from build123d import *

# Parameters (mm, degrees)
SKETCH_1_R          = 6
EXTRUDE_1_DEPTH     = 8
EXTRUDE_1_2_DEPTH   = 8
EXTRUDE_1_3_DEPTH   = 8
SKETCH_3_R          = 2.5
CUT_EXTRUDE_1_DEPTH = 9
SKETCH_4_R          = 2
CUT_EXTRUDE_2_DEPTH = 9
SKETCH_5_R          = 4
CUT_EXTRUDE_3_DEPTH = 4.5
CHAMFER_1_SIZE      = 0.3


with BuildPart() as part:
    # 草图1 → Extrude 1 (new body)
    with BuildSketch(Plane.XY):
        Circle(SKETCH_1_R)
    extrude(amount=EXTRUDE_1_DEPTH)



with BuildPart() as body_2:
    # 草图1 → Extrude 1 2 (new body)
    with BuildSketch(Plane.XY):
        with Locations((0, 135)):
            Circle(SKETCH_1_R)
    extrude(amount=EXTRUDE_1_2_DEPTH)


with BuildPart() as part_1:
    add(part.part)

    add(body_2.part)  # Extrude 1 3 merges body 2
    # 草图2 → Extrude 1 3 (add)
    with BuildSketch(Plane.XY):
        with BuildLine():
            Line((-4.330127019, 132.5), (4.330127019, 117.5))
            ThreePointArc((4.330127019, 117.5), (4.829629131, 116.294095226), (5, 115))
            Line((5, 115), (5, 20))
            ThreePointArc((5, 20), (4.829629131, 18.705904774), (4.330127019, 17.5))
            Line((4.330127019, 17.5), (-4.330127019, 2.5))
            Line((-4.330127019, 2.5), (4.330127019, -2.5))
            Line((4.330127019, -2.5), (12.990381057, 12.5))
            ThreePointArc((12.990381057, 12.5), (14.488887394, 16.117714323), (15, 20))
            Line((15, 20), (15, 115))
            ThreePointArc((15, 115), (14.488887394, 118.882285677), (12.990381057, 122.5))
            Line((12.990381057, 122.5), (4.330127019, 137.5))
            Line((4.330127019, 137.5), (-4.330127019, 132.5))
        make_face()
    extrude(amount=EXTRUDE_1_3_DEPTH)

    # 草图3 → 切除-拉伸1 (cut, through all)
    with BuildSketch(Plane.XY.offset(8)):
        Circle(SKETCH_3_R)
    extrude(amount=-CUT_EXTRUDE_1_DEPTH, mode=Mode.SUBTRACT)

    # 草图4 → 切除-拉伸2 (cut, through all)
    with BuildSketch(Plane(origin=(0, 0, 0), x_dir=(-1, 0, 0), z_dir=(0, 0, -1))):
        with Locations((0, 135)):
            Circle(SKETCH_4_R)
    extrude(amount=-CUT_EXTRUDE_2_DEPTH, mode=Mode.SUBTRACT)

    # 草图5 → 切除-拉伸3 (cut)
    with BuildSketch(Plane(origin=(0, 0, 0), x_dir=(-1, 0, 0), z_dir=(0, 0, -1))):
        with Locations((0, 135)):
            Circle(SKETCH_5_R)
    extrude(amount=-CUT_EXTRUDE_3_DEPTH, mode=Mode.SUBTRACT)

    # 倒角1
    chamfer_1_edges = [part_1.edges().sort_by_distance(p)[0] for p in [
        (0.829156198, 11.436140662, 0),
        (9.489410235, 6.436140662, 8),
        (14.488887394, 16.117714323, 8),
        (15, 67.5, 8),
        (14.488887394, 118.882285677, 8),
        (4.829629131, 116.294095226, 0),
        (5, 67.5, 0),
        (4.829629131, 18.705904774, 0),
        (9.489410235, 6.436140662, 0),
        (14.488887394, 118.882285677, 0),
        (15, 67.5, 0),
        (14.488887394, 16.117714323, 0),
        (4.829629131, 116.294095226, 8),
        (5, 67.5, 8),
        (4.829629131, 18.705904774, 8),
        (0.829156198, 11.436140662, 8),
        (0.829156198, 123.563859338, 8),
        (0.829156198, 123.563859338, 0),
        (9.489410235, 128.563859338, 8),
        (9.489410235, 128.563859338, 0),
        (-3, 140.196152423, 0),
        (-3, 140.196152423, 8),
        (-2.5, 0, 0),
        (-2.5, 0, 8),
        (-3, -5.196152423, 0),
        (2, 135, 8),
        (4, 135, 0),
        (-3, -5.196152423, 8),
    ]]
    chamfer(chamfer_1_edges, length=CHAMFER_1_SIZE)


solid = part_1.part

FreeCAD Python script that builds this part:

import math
import FreeCAD as App
import Part
import Sketcher
Q = App.Units.Quantity


def edges_at(feature, points):
    """Names of the edges that pass closest to the given points."""
    edges = feature.Shape.Edges
    near = lambda p: min(range(len(edges)), key=lambda i: edges[i].distToShape(Part.Vertex(*p))[0])
    return sorted({f"Edge{near(p) + 1}" for p in points})

doc = App.newDocument("Part")
body = doc.addObject("PartDesign::Body", "Body")

sketch1 = doc.addObject("Sketcher::SketchObject", "Sketch")
body.addObject(sketch1)
sketch1.AttachmentSupport = (doc.XY_Plane, [""])
sketch1.MapMode = "FlatFace"
sketch1.addGeometry(Part.Circle(App.Vector(0, 0, 0), App.Vector(0, 0, 1), 6), False)
sketch1.addConstraint([
    Sketcher.Constraint("Coincident", 0, 3, -1, 1),
    Sketcher.Constraint("Diameter", 0, 12.0),
])
pad1 = doc.addObject("PartDesign::Pad", "Pad")
body.addObject(pad1)
pad1.Profile = sketch1
pad1.Length = 8
body2 = doc.addObject("PartDesign::Body", "Body001")

sketch2 = doc.addObject("Sketcher::SketchObject", "Sketch001")
body2.addObject(sketch2)
sketch2.AttachmentSupport = (doc.getObject("XY_Plane001"), [""])
sketch2.MapMode = "FlatFace"
sketch2.addGeometry(Part.Circle(App.Vector(0, 135, 0), App.Vector(0, 0, 1), 6), False)
sketch2.addConstraint([
    Sketcher.Constraint("PointOnObject", 0, 3, -2),
    Sketcher.Constraint("Diameter", 0, 12.0),
    Sketcher.Constraint("DistanceY", -1, 1, 0, 3, 135.0),
])
pad2 = doc.addObject("PartDesign::Pad", "Pad001")
body2.addObject(pad2)
pad2.Profile = sketch2
pad2.Length = 8
body.AllowCompound = True
doc.recompute()

boolean = doc.addObject("PartDesign::Boolean", "Boolean")
body.addObject(boolean)
boolean.Type = "Fuse"
boolean.addObjects([body2])

sketch3 = doc.addObject("Sketcher::SketchObject", "Sketch002")
body.addObject(sketch3)
sketch3.AttachmentSupport = (doc.XY_Plane, [""])
sketch3.MapMode = "FlatFace"
sketch3.addGeometry([
    Part.LineSegment(App.Vector(-4.3, 132.5, 0), App.Vector(4.3, 117.5, 0)),
    Part.ArcOfCircle(Part.Circle(App.Vector(0, 115, 0), App.Vector(0, 0, 1), 5), math.radians(0), math.radians(30)),
    Part.LineSegment(App.Vector(5, 115, 0), App.Vector(5, 20, 0)),
    Part.ArcOfCircle(Part.Circle(App.Vector(0, 20, 0), App.Vector(0, 0, 1), 5), math.radians(-30), math.radians(0)),
    Part.LineSegment(App.Vector(4.3, 17.5, 0), App.Vector(-4.3, 2.5, 0)),
    Part.LineSegment(App.Vector(-4.3, 2.5, 0), App.Vector(4.3, -2.5, 0)),
    Part.LineSegment(App.Vector(4.3, -2.5, 0), App.Vector(13, 12.5, 0)),
    Part.ArcOfCircle(Part.Circle(App.Vector(0, 20, 0), App.Vector(0, 0, 1), 15), math.radians(-30), math.radians(0)),
    Part.LineSegment(App.Vector(15, 20, 0), App.Vector(15, 115, 0)),
    Part.ArcOfCircle(Part.Circle(App.Vector(0, 115, 0), App.Vector(0, 0, 1), 15), math.radians(0), math.radians(30)),
    Part.LineSegment(App.Vector(13, 122.5, 0), App.Vector(4.3, 137.5, 0)),
    Part.LineSegment(App.Vector(4.3, 137.5, 0), App.Vector(-4.3, 132.5, 0)),
], False)
sketch3.addConstraint([
    Sketcher.Constraint("Tangent", 0, 2, 1, 2),
    Sketcher.Constraint("Tangent", 1, 1, 2, 1),
    Sketcher.Constraint("Tangent", 2, 2, 3, 2),
    Sketcher.Constraint("Tangent", 3, 1, 4, 1),
    Sketcher.Constraint("Coincident", 4, 2, 5, 1),
    Sketcher.Constraint("Coincident", 5, 2, 6, 1),
    Sketcher.Constraint("Tangent", 6, 2, 7, 1),
    Sketcher.Constraint("Tangent", 7, 2, 8, 1),
    Sketcher.Constraint("Tangent", 8, 2, 9, 1),
    Sketcher.Constraint("Tangent", 9, 2, 10, 1),
    Sketcher.Constraint("Coincident", 10, 2, 11, 1),
    Sketcher.Constraint("Coincident", 11, 2, 0, 1),
    Sketcher.Constraint("Vertical", 2),
    Sketcher.Constraint("Vertical", 8),
    Sketcher.Constraint("Coincident", 7, 3, 3, 3),
    Sketcher.Constraint("Coincident", 9, 3, 1, 3),
    Sketcher.Constraint("Equal", 1, 3),
    Sketcher.Constraint("Symmetric", 4, 2, 5, 2, -1, 1),
    Sketcher.Constraint("PointOnObject", 1, 3, -2),
    Sketcher.Constraint("Perpendicular", 4, 5),
    Sketcher.Constraint("Perpendicular", 5, 6),
    Sketcher.Constraint("Parallel", 0, 10),
    Sketcher.Constraint("Perpendicular", 10, 11),
    Sketcher.Constraint("Vertical", 0, 2, 3, 1),
    Sketcher.Constraint("Vertical", 3, 1, 5, 2),
    Sketcher.Constraint("Vertical", 5, 2, 10, 2),
    Sketcher.Constraint("Radius", 1, 5.0),
    Sketcher.Constraint("DistanceY", 2, 2, 2, 1, 95.0),
    Sketcher.Constraint("Angle", 0, Q("-60 deg")),
])
pad3 = doc.addObject("PartDesign::Pad", "Pad002")
body.addObject(pad3)
pad3.Profile = sketch3
pad3.Length = 8

sketch4 = doc.addObject("Sketcher::SketchObject", "Sketch003")
body.addObject(sketch4)
sketch4.AttachmentSupport = (doc.XY_Plane, [""])
sketch4.MapMode = "FlatFace"
sketch4.AttachmentOffset = App.Placement(App.Vector(0, 0, 8), App.Rotation())
sketch4.addGeometry(Part.Circle(App.Vector(0, 0, 0), App.Vector(0, 0, 1), 2.5), False)
sketch4.addConstraint([
    Sketcher.Constraint("Coincident", 0, 3, -1, 1),
    Sketcher.Constraint("Diameter", 0, 5.0),
])
pocket1 = doc.addObject("PartDesign::Pocket", "Pocket")
body.addObject(pocket1)
pocket1.Profile = sketch4
pocket1.Type = "ThroughAll"

sketch5 = doc.addObject("Sketcher::SketchObject", "Sketch004")
body.addObject(sketch5)
sketch5.AttachmentSupport = (doc.XY_Plane, [""])
sketch5.MapMode = "FlatFace"
sketch5.addGeometry(Part.Circle(App.Vector(0, 135, 0), App.Vector(0, 0, 1), 2), False)
sketch5.addConstraint([
    Sketcher.Constraint("PointOnObject", 0, 3, -2),
    Sketcher.Constraint("Diameter", 0, 4.0),
    Sketcher.Constraint("DistanceY", -1, 1, 0, 3, 135.0),
])
pocket2 = doc.addObject("PartDesign::Pocket", "Pocket001")
body.addObject(pocket2)
pocket2.Profile = sketch5
pocket2.Type = "ThroughAll"
pocket2.Reversed = True

sketch6 = doc.addObject("Sketcher::SketchObject", "Sketch005")
body.addObject(sketch6)
sketch6.AttachmentSupport = (doc.XY_Plane, [""])
sketch6.MapMode = "FlatFace"
sketch6.addGeometry(Part.Circle(App.Vector(0, 135, 0), App.Vector(0, 0, 1), 4), False)
sketch6.addConstraint([
    Sketcher.Constraint("PointOnObject", 0, 3, -2),
    Sketcher.Constraint("Diameter", 0, 8.0),
    Sketcher.Constraint("DistanceY", -1, 1, 0, 3, 135.0),
])
pocket3 = doc.addObject("PartDesign::Pocket", "Pocket002")
body.addObject(pocket3)
pocket3.Profile = sketch6
pocket3.Length = 4.5
pocket3.Reversed = True
doc.recompute()

chamfer = doc.addObject("PartDesign::Chamfer", "Chamfer")
body.addObject(chamfer)
chamfer.Base = (pocket3, edges_at(pocket3, [
    (0.829, 11.436, 0),
    (9.489, 6.436, 8),
    (14.489, 16.118, 8),
    (15, 67.5, 8),
    (14.489, 118.882, 8),
    (4.83, 116.294, 0),
    (5, 67.5, 0),
    (4.83, 18.706, 0),
    (9.489, 6.436, 0),
    (14.489, 118.882, 0),
    (15, 67.5, 0),
    (14.489, 16.118, 0),
    (4.83, 116.294, 8),
    (5, 67.5, 8),
    (4.83, 18.706, 8),
    (0.829, 11.436, 8),
    (0.829, 123.564, 8),
    (0.829, 123.564, 0),
    (9.489, 128.564, 8),
    (9.489, 128.564, 0),
    (-3, 140.196, 0),
    (-3, 140.196, 8),
    (-2.5, 0, 0),
    (-2.5, 0, 8),
    (-3, -5.196, 0),
    (2, 135, 8),
    (4, 135, 0),
    (-3, -5.196, 8),
]))
chamfer.Size = 0.3

doc.recompute()
